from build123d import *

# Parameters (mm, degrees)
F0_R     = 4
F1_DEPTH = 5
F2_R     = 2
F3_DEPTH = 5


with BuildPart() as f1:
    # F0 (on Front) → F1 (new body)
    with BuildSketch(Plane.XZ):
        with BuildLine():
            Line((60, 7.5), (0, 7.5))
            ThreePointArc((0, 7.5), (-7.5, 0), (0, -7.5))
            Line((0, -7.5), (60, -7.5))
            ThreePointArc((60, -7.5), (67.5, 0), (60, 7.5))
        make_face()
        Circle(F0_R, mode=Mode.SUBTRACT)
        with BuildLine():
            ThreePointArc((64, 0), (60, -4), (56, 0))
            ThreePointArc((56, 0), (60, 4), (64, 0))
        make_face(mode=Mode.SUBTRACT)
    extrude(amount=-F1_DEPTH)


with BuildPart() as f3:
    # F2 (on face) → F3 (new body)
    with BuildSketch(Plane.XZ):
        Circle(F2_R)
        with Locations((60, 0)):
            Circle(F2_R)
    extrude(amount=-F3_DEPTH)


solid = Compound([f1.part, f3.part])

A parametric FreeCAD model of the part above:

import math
import FreeCAD as App
import Part
import Sketcher
from FreeCAD import Vector
Q = App.Units.Quantity

doc = App.newDocument("Part")
body = doc.addObject("PartDesign::Body", "Body")

sketch1 = doc.addObject("Sketcher::SketchObject", "Sketch")
body.addObject(sketch1)
sketch1.AttachmentSupport = (doc.XZ_Plane, [""])
sketch1.MapMode = "FlatFace"
sketch1.addGeometry([
    Part.LineSegment(Vector(60, 7.5, 0), Vector(0, 7.5, 0)),
    Part.ArcOfCircle(Part.Circle(Vector(0, 0, 0), Vector(0, 0, 1), 7.5), math.radians(90), math.radians(270)),
    Part.LineSegment(Vector(0, -7.5, 0), Vector(60, -7.5, 0)),
    Part.ArcOfCircle(Part.Circle(Vector(60, 0, 0), Vector(0, 0, 1), 7.5), math.radians(-90), math.radians(90)),
    Part.Circle(Vector(0, 0, 0), Vector(0, 0, 1), 4),
    Part.Circle(Vector(60, 0, 0), Vector(0, 0, 1), 4),
], False)
sketch1.addConstraint([
    Sketcher.Constraint("Tangent", 0, 2, 1, 1),
    Sketcher.Constraint("Tangent", 1, 2, 2, 1),
    Sketcher.Constraint("Tangent", 2, 2, 3, 1),
    Sketcher.Constraint("Tangent", 3, 2, 0, 1),
    Sketcher.Constraint("Horizontal", 0),
    Sketcher.Constraint("Horizontal", 2),
    Sketcher.Constraint("Coincident", 1, 3, -1, 1),
    Sketcher.Constraint("Coincident", 4, 3, -1, 1),
    Sketcher.Constraint("Coincident", 5, 3, 3, 3),
    Sketcher.Constraint("Equal", 4, 5),
    Sketcher.Constraint("Diameter", 4, Q("8 mm")),
    Sketcher.Constraint("Radius", 1, Q("7.5 mm")),
    Sketcher.Constraint("DistanceX", 0, 2, 0, 1, Q("60 mm")),
])
pad1 = doc.addObject("PartDesign::Pad", "Pad")
body.addObject(pad1)
pad1.Profile = sketch1
pad1.Length = 5
pad1.Reversed = True
body2 = doc.addObject("PartDesign::Body", "Body001")
body2.AllowCompound = True

sketch2 = doc.addObject("Sketcher::SketchObject", "Sketch001")
body2.addObject(sketch2)
sketch2.AttachmentSupport = (doc.getObject("XZ_Plane001"), [""])
sketch2.MapMode = "FlatFace"
sketch2.addGeometry([
    Part.Circle(Vector(0, 0, 0), Vector(0, 0, 1), 2),
    Part.Circle(Vector(60, 0, 0), Vector(0, 0, 1), 2),
], False)
sketch2.addConstraint([
    Sketcher.Constraint("Coincident", 0, 3, -1, 1),
    Sketcher.Constraint("Equal", 0, 1),
    Sketcher.Constraint("PointOnObject", 1, 3, -1),
    Sketcher.Constraint("Diameter", 0, Q("4 mm")),
    Sketcher.Constraint("DistanceX", -1, 1, 1, 3, Q("60 mm")),
])
pad2 = doc.addObject("PartDesign::Pad", "Pad001")
body2.addObject(pad2)
pad2.Profile = sketch2
pad2.Length = 5
pad2.Reversed = True

doc.recompute()
